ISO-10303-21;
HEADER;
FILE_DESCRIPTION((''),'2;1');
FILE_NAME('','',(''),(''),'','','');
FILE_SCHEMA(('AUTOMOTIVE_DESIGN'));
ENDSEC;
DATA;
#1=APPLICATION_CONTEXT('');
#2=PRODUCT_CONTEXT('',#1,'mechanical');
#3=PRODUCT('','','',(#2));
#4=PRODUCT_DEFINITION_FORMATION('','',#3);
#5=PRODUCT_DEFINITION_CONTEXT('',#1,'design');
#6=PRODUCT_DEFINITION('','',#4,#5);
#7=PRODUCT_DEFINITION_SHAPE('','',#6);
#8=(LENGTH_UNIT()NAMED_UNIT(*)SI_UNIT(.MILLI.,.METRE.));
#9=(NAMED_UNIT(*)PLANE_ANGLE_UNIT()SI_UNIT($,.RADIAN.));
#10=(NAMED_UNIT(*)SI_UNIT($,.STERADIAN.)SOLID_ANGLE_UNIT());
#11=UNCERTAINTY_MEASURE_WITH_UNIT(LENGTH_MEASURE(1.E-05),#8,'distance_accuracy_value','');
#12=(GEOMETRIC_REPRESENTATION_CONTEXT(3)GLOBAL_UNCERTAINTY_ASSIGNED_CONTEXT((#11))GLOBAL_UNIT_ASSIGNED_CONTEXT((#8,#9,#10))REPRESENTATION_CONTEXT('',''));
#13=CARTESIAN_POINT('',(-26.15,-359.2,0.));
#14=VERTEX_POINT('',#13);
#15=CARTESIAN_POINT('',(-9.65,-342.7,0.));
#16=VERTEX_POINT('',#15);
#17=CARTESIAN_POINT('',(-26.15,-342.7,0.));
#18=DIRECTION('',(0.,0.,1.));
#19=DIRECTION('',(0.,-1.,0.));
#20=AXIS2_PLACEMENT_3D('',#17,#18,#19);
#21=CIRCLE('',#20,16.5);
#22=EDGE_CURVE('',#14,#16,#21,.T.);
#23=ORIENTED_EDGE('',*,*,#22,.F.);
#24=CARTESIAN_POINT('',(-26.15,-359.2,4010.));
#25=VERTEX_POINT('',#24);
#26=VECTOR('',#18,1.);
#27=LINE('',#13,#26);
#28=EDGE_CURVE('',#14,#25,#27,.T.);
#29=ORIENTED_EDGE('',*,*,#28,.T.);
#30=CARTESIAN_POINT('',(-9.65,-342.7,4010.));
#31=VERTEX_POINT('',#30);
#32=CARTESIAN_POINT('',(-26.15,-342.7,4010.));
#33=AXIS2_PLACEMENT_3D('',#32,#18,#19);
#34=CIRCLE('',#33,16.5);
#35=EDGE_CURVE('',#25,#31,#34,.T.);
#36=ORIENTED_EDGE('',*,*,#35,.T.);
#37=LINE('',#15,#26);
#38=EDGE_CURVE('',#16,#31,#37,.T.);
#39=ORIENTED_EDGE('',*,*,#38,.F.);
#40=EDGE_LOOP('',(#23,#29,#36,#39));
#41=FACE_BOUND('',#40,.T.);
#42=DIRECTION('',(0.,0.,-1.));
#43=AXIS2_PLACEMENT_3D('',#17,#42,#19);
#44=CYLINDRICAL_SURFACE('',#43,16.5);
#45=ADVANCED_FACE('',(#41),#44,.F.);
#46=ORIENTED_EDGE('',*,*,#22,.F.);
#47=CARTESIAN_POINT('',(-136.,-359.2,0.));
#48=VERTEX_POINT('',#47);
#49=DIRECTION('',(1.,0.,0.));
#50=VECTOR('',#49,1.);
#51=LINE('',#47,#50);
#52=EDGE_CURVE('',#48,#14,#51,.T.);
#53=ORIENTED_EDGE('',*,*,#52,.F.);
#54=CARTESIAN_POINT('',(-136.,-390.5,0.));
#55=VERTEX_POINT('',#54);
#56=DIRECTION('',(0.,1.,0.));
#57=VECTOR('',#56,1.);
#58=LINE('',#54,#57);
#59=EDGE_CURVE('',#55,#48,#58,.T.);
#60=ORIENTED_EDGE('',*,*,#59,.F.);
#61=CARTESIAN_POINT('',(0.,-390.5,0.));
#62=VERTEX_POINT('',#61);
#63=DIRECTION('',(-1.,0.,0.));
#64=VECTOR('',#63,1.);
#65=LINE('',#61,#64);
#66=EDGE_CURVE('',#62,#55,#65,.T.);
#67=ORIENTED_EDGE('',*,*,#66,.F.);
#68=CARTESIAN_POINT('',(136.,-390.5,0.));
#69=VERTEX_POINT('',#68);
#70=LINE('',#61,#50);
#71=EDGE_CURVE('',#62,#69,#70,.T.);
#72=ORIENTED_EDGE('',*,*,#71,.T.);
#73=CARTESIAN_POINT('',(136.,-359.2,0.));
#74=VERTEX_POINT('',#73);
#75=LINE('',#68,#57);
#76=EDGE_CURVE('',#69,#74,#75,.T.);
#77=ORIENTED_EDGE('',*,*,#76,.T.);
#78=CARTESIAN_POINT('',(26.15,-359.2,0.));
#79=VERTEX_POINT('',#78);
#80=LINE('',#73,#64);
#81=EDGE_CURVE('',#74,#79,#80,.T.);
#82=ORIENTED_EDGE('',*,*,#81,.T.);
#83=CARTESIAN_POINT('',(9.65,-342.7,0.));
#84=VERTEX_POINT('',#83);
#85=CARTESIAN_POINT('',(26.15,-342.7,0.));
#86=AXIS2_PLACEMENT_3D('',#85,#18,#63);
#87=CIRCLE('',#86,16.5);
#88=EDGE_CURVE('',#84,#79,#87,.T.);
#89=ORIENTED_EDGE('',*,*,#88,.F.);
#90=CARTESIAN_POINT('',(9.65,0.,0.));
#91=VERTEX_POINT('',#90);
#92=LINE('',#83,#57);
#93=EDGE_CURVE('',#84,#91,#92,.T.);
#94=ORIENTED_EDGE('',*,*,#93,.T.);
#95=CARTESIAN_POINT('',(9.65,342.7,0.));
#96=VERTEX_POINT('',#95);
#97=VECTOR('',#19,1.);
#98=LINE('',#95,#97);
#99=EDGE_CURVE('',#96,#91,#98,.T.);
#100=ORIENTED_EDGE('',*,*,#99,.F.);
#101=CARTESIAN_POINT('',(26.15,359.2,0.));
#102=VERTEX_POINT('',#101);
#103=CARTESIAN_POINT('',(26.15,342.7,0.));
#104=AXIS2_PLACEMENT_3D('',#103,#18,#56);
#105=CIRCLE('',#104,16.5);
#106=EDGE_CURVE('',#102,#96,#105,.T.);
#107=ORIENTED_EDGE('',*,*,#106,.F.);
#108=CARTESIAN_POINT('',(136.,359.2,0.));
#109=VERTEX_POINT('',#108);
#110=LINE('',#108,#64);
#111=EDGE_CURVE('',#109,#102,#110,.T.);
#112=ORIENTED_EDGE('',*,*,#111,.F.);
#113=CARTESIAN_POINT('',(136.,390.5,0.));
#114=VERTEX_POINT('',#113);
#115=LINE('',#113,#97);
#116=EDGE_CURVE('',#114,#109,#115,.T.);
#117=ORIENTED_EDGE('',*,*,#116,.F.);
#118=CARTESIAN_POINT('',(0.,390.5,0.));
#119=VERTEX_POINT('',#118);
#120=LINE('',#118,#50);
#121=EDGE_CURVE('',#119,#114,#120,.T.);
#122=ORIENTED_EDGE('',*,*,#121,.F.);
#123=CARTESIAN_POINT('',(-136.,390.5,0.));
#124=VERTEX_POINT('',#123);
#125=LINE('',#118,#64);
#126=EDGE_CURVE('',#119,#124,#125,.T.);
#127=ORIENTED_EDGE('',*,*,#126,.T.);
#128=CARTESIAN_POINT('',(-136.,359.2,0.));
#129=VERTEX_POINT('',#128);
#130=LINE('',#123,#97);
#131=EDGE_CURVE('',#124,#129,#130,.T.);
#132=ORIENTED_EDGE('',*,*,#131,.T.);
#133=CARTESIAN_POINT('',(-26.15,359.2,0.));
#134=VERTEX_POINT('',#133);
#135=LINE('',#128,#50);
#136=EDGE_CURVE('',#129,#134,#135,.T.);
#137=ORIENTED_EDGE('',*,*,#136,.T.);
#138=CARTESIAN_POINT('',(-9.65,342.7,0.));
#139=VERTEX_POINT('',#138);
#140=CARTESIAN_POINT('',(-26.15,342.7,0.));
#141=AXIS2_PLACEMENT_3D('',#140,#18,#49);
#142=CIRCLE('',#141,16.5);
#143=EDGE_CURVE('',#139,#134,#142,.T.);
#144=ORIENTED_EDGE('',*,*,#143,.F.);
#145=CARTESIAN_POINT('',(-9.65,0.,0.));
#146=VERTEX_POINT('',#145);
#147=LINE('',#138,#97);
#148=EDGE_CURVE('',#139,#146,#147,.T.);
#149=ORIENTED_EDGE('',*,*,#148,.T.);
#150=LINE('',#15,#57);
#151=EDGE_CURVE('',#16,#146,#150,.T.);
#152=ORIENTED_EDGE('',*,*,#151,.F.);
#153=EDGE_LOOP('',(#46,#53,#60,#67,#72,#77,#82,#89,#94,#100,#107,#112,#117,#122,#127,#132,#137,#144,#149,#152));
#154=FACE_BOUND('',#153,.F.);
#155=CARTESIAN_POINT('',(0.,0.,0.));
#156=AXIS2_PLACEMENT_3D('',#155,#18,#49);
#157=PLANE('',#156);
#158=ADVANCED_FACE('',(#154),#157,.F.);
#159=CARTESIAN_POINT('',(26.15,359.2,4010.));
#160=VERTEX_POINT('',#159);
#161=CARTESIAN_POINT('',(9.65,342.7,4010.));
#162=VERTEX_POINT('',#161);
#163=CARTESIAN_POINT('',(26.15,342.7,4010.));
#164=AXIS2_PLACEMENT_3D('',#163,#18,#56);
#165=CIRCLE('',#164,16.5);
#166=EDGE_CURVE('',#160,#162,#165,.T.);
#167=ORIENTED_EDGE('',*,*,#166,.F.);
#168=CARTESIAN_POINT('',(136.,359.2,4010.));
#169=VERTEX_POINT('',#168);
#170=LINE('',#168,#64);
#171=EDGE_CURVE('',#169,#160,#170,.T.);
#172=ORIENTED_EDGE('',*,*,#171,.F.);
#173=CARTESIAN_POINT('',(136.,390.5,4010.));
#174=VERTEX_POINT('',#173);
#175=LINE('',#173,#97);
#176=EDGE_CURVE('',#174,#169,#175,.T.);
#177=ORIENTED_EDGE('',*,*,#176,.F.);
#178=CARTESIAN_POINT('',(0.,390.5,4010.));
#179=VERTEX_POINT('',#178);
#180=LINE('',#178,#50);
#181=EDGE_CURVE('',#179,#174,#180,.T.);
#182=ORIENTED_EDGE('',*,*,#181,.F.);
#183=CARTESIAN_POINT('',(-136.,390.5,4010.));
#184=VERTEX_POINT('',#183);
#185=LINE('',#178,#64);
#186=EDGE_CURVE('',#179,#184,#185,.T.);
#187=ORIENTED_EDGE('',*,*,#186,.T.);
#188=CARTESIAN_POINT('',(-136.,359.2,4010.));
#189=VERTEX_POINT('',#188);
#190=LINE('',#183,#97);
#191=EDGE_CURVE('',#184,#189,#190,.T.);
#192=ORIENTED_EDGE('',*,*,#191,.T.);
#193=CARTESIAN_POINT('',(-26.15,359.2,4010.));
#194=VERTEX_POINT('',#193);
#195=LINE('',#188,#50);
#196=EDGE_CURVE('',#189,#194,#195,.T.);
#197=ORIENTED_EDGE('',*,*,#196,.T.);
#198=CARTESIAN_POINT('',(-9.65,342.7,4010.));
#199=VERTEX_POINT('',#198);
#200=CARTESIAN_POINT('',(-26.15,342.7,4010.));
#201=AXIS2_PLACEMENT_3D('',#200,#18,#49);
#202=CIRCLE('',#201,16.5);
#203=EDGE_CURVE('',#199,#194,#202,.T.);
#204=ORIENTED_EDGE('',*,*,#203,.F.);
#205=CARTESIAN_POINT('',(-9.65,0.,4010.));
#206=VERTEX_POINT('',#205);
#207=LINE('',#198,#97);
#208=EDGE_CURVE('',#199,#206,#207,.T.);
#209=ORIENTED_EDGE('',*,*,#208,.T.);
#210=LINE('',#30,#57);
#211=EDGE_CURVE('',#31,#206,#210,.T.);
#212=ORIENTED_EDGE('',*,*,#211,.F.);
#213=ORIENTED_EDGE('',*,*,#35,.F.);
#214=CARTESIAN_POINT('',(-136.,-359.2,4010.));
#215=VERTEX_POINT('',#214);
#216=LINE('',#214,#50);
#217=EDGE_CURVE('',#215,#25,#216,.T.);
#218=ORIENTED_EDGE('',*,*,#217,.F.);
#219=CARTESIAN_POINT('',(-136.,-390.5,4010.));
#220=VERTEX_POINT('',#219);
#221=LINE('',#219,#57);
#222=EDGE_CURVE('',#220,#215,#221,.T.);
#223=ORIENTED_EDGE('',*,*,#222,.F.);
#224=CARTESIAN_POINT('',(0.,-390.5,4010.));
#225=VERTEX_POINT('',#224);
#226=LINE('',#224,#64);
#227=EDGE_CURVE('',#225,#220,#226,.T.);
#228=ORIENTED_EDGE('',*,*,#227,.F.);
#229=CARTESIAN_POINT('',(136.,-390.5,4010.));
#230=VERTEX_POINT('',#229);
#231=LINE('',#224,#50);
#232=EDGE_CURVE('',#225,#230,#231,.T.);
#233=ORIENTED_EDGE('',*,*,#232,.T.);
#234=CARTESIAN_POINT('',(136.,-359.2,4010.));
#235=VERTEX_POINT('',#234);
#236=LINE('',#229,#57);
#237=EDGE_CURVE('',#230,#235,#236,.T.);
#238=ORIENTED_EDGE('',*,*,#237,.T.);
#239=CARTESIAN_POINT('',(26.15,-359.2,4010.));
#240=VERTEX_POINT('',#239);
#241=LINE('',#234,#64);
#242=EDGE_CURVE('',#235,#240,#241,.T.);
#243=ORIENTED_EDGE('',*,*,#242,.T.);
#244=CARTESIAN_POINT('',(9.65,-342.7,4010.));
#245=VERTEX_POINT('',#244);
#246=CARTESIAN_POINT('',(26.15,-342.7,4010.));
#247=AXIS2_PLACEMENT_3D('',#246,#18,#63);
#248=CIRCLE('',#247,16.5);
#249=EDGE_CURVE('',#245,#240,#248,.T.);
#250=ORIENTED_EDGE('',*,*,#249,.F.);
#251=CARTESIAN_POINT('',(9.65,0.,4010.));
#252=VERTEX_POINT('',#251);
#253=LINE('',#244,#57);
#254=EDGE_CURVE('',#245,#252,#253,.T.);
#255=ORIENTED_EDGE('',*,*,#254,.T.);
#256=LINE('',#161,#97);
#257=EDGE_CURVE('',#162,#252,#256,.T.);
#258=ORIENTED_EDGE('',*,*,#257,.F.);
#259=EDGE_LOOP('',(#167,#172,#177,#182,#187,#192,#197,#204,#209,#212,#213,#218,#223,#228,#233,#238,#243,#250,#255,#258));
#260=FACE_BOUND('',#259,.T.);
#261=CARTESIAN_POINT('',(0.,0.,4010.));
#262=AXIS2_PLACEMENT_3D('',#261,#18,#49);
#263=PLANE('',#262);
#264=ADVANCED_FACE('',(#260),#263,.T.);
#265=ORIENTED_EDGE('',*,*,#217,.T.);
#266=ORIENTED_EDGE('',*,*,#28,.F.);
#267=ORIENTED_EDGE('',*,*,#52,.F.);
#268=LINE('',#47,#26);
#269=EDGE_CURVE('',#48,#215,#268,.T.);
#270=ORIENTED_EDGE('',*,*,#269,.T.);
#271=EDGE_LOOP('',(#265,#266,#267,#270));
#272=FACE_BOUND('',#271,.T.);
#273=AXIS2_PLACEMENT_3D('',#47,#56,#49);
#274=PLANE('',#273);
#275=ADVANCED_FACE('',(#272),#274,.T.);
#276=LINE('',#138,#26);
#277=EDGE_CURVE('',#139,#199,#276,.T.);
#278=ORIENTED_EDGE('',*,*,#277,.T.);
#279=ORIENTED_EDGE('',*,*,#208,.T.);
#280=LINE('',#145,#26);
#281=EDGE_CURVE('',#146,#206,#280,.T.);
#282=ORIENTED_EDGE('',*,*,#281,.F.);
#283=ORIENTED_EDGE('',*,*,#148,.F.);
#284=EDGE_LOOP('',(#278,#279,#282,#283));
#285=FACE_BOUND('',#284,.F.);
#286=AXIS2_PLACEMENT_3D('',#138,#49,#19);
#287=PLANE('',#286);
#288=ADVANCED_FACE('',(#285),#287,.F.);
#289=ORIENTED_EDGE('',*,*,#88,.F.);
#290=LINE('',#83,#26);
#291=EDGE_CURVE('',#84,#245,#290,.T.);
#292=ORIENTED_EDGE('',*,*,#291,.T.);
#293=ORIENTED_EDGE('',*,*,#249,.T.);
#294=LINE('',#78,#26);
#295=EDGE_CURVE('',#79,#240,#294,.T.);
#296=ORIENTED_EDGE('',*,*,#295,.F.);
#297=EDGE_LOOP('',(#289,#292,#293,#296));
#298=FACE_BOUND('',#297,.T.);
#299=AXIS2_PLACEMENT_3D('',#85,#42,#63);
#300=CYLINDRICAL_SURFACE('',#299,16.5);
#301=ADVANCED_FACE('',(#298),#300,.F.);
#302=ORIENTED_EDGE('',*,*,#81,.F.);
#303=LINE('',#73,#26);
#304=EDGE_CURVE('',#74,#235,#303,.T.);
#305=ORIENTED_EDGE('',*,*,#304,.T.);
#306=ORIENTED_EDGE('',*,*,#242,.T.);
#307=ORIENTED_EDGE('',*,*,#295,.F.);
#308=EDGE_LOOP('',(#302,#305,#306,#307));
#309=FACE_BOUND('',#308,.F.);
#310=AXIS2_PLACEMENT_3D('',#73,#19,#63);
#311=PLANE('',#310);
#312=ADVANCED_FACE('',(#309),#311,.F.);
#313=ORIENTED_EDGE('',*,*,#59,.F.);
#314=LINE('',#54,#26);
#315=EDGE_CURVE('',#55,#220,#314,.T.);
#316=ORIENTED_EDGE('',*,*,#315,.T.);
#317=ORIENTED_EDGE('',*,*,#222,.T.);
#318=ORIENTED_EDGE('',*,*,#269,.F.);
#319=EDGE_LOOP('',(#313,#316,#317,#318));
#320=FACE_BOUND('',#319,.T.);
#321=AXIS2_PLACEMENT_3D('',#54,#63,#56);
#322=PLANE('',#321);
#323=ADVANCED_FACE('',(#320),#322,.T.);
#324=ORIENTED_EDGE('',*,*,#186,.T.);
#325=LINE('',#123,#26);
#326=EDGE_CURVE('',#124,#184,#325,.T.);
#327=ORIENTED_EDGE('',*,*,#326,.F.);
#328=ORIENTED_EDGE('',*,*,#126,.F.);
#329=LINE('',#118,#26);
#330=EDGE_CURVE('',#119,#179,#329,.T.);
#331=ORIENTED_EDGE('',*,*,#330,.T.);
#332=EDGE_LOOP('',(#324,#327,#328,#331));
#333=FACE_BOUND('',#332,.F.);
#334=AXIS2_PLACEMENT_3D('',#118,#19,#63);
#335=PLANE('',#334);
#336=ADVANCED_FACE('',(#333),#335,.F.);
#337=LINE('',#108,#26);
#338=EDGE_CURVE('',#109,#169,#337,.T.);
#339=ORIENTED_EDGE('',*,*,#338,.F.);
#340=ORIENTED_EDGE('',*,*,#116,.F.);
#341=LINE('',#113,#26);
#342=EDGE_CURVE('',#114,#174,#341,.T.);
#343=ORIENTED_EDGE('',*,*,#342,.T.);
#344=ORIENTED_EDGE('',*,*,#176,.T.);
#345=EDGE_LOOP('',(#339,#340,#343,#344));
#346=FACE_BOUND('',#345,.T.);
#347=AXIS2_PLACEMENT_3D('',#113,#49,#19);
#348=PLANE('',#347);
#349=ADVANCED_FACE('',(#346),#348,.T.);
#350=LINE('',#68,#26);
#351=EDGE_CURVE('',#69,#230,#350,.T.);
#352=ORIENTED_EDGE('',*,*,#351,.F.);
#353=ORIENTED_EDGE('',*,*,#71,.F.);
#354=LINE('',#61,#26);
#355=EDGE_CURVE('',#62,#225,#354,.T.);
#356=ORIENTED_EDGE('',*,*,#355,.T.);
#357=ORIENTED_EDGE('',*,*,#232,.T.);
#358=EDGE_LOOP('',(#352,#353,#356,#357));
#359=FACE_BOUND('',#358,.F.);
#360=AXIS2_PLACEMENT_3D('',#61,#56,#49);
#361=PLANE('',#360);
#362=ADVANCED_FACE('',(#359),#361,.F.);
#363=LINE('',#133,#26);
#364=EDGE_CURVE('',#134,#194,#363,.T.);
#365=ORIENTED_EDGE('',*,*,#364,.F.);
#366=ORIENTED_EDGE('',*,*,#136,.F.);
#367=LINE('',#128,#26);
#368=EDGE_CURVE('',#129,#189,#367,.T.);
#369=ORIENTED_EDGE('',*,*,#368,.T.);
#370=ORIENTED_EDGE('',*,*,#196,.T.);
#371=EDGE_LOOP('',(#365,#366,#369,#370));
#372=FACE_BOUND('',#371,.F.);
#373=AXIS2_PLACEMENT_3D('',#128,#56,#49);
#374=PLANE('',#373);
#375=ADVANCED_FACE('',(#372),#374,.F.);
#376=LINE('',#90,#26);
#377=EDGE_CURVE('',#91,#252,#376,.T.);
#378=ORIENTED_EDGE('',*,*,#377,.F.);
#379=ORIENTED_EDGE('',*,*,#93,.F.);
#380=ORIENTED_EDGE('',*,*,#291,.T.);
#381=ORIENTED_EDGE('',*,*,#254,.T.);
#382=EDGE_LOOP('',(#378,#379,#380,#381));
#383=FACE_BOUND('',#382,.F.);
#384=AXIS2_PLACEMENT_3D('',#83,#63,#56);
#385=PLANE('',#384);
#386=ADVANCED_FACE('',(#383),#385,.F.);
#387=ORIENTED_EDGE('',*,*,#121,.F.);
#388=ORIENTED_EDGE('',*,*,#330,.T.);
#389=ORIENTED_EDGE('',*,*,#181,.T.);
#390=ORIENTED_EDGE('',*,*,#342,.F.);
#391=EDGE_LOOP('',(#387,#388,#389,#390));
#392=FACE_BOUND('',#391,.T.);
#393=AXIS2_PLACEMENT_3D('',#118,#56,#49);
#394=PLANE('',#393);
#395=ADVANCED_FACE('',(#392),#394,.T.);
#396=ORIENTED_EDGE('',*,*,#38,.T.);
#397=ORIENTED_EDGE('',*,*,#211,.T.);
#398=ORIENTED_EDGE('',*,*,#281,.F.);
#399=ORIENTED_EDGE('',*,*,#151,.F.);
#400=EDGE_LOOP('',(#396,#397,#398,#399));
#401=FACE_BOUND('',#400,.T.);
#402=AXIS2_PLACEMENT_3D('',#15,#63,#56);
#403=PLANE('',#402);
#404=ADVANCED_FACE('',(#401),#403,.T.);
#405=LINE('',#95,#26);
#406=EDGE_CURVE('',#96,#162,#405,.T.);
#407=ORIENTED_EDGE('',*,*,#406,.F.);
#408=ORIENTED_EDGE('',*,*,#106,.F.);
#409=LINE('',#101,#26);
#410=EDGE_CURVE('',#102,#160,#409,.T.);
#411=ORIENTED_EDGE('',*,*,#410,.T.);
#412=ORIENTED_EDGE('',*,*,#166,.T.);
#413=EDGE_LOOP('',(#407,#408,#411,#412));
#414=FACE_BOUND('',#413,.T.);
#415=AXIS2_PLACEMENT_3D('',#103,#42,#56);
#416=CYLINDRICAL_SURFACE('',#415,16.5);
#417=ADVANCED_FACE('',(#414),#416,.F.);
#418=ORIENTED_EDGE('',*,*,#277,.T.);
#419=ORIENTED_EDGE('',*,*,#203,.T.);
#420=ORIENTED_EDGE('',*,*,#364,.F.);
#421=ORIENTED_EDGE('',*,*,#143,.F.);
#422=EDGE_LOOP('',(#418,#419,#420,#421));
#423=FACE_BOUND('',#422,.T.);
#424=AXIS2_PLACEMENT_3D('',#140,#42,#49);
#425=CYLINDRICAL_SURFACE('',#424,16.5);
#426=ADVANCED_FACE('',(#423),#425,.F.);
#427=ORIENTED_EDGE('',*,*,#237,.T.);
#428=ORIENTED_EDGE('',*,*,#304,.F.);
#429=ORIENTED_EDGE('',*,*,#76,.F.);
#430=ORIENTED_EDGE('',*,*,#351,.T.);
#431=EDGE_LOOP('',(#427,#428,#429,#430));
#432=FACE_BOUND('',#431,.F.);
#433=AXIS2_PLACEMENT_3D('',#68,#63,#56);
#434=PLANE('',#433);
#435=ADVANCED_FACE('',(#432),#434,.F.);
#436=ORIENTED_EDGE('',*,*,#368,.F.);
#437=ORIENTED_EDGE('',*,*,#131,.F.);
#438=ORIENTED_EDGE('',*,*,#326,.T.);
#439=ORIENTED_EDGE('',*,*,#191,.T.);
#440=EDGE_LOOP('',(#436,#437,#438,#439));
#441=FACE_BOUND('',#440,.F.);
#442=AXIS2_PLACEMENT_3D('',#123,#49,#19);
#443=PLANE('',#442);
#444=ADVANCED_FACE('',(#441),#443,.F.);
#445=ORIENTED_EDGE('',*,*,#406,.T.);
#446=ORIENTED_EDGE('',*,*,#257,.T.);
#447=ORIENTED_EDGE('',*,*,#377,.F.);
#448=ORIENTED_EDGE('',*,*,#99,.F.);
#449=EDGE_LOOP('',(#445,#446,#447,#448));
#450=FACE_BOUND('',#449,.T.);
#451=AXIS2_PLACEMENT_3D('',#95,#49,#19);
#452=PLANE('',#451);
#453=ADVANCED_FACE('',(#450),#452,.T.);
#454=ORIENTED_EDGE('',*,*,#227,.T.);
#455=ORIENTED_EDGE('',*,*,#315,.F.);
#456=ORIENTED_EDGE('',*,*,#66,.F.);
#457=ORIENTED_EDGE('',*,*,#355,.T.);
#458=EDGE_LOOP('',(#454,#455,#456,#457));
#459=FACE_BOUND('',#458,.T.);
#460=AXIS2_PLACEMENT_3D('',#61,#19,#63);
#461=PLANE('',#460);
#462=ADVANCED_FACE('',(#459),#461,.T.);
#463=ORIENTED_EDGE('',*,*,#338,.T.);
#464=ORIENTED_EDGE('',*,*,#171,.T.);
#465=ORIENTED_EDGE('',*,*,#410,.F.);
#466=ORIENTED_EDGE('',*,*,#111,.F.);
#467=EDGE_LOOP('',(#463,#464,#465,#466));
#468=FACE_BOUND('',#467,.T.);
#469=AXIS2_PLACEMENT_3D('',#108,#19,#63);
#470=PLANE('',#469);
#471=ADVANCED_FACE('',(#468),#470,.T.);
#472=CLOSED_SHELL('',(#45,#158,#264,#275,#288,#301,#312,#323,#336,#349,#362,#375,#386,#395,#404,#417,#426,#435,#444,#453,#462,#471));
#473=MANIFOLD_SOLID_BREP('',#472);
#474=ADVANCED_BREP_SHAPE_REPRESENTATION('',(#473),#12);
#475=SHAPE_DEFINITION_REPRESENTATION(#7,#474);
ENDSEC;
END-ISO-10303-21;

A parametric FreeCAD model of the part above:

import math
import FreeCAD as App
import Part
import Sketcher

doc = App.newDocument("Part")
body = doc.addObject("PartDesign::Body", "Body")

sketch1 = body.newObject("Sketcher::SketchObject", "Sketch")
sketch1.AttachmentSupport = (doc.getObject("XY_Plane"), [""])
sketch1.MapMode = "FlatFace"
sketch1.addGeometry(Part.LineSegment(App.Vector(-136, -359, 0), App.Vector(-136, -390, 0)), False)
sketch1.addGeometry(Part.LineSegment(App.Vector(-136, -390, 0), App.Vector(136, -390, 0)), False)
sketch1.addGeometry(Part.LineSegment(App.Vector(136, -390, 0), App.Vector(136, -359, 0)), False)
sketch1.addGeometry(Part.LineSegment(App.Vector(136, -359, 0), App.Vector(26, -359, 0)), False)
sketch1.addGeometry(Part.ArcOfCircle(Part.Circle(App.Vector(26, -343, 0), App.Vector(0, 0, 1), 16), math.radians(180), math.radians(270)), False)
sketch1.addGeometry(Part.LineSegment(App.Vector(10, -343, 0), App.Vector(10, 343, 0)), False)
sketch1.addGeometry(Part.ArcOfCircle(Part.Circle(App.Vector(26, 343, 0), App.Vector(0, 0, 1), 16), math.radians(90), math.radians(180)), False)
sketch1.addGeometry(Part.LineSegment(App.Vector(26, 359, 0), App.Vector(136, 359, 0)), False)
sketch1.addGeometry(Part.LineSegment(App.Vector(136, 359, 0), App.Vector(136, 390, 0)), False)
sketch1.addGeometry(Part.LineSegment(App.Vector(136, 390, 0), App.Vector(-136, 390, 0)), False)
sketch1.addGeometry(Part.LineSegment(App.Vector(-136, 390, 0), App.Vector(-136, 359, 0)), False)
sketch1.addGeometry(Part.LineSegment(App.Vector(-136, 359, 0), App.Vector(-26, 359, 0)), False)
sketch1.addGeometry(Part.ArcOfCircle(Part.Circle(App.Vector(-26, 343, 0), App.Vector(0, 0, 1), 16), math.radians(0), math.radians(90)), False)
sketch1.addGeometry(Part.LineSegment(App.Vector(-10, 343, 0), App.Vector(-10, -343, 0)), False)
sketch1.addGeometry(Part.ArcOfCircle(Part.Circle(App.Vector(-26, -343, 0), App.Vector(0, 0, 1), 16), math.radians(-90), math.radians(0)), False)
sketch1.addGeometry(Part.LineSegment(App.Vector(-26, -359, 0), App.Vector(-136, -359, 0)), False)
sketch1.addConstraint(Sketcher.Constraint("Coincident", 0, 2, 1, 1))
sketch1.addConstraint(Sketcher.Constraint("Coincident", 1, 2, 2, 1))
sketch1.addConstraint(Sketcher.Constraint("Coincident", 2, 2, 3, 1))
sketch1.addConstraint(Sketcher.Constraint("Tangent", 3, 2, 4, 2))
sketch1.addConstraint(Sketcher.Constraint("Tangent", 4, 1, 5, 1))
sketch1.addConstraint(Sketcher.Constraint("Tangent", 5, 2, 6, 2))
sketch1.addConstraint(Sketcher.Constraint("Tangent", 6, 1, 7, 1))
sketch1.addConstraint(Sketcher.Constraint("Coincident", 7, 2, 8, 1))
sketch1.addConstraint(Sketcher.Constraint("Coincident", 8, 2, 9, 1))
sketch1.addConstraint(Sketcher.Constraint("Coincident", 9, 2, 10, 1))
sketch1.addConstraint(Sketcher.Constraint("Coincident", 10, 2, 11, 1))
sketch1.addConstraint(Sketcher.Constraint("Tangent", 11, 2, 12, 2))
sketch1.addConstraint(Sketcher.Constraint("Tangent", 12, 1, 13, 1))
sketch1.addConstraint(Sketcher.Constraint("Tangent", 13, 2, 14, 2))
sketch1.addConstraint(Sketcher.Constraint("Tangent", 14, 1, 15, 1))
sketch1.addConstraint(Sketcher.Constraint("Coincident", 15, 2, 0, 1))
sketch1.addConstraint(Sketcher.Constraint("Vertical", 0))
sketch1.addConstraint(Sketcher.Constraint("Horizontal", 1))
sketch1.addConstraint(Sketcher.Constraint("Vertical", 2))
sketch1.addConstraint(Sketcher.Constraint("Horizontal", 3))
sketch1.addConstraint(Sketcher.Constraint("Vertical", 5))
sketch1.addConstraint(Sketcher.Constraint("Horizontal", 7))
sketch1.addConstraint(Sketcher.Constraint("Vertical", 8))
sketch1.addConstraint(Sketcher.Constraint("Horizontal", 9))
sketch1.addConstraint(Sketcher.Constraint("Vertical", 10))
sketch1.addConstraint(Sketcher.Constraint("Horizontal", 11))
sketch1.addConstraint(Sketcher.Constraint("Vertical", 13))
sketch1.addConstraint(Sketcher.Constraint("Horizontal", 15))
sketch1.addConstraint(Sketcher.Constraint("Equal", 4, 6))
sketch1.addConstraint(Sketcher.Constraint("Equal", 6, 12))
sketch1.addConstraint(Sketcher.Constraint("Equal", 12, 14))
sketch1.addConstraint(Sketcher.Constraint("Symmetric", 4, 3, 12, 3, -1, 1))
sketch1.addConstraint(Sketcher.Constraint("Symmetric", 0, 2, 8, 2, -1, 1))
sketch1.addConstraint(Sketcher.Constraint("Symmetric", 7, 2, 10, 2, -2))
sketch1.addConstraint(Sketcher.Constraint("Symmetric", 2, 2, 15, 2, -2))
sketch1.addConstraint(Sketcher.Constraint("Radius", 4, 16.5))
sketch1.addConstraint(Sketcher.Constraint("DistanceY", 0, 2, 0, 1, 31.3))
sketch1.addConstraint(Sketcher.Constraint("DistanceX", 0, 2, -1, 1, 136.0))
sketch1.addConstraint(Sketcher.Constraint("DistanceY", 0, 2, -1, 1, 390.5))
sketch1.addConstraint(Sketcher.Constraint("DistanceX", -1, 1, 4, 1, 9.65))
pad1 = body.newObject("PartDesign::Pad", "Pad")
pad1.Profile = sketch1
pad1.Length = 4010

doc.recompute()
